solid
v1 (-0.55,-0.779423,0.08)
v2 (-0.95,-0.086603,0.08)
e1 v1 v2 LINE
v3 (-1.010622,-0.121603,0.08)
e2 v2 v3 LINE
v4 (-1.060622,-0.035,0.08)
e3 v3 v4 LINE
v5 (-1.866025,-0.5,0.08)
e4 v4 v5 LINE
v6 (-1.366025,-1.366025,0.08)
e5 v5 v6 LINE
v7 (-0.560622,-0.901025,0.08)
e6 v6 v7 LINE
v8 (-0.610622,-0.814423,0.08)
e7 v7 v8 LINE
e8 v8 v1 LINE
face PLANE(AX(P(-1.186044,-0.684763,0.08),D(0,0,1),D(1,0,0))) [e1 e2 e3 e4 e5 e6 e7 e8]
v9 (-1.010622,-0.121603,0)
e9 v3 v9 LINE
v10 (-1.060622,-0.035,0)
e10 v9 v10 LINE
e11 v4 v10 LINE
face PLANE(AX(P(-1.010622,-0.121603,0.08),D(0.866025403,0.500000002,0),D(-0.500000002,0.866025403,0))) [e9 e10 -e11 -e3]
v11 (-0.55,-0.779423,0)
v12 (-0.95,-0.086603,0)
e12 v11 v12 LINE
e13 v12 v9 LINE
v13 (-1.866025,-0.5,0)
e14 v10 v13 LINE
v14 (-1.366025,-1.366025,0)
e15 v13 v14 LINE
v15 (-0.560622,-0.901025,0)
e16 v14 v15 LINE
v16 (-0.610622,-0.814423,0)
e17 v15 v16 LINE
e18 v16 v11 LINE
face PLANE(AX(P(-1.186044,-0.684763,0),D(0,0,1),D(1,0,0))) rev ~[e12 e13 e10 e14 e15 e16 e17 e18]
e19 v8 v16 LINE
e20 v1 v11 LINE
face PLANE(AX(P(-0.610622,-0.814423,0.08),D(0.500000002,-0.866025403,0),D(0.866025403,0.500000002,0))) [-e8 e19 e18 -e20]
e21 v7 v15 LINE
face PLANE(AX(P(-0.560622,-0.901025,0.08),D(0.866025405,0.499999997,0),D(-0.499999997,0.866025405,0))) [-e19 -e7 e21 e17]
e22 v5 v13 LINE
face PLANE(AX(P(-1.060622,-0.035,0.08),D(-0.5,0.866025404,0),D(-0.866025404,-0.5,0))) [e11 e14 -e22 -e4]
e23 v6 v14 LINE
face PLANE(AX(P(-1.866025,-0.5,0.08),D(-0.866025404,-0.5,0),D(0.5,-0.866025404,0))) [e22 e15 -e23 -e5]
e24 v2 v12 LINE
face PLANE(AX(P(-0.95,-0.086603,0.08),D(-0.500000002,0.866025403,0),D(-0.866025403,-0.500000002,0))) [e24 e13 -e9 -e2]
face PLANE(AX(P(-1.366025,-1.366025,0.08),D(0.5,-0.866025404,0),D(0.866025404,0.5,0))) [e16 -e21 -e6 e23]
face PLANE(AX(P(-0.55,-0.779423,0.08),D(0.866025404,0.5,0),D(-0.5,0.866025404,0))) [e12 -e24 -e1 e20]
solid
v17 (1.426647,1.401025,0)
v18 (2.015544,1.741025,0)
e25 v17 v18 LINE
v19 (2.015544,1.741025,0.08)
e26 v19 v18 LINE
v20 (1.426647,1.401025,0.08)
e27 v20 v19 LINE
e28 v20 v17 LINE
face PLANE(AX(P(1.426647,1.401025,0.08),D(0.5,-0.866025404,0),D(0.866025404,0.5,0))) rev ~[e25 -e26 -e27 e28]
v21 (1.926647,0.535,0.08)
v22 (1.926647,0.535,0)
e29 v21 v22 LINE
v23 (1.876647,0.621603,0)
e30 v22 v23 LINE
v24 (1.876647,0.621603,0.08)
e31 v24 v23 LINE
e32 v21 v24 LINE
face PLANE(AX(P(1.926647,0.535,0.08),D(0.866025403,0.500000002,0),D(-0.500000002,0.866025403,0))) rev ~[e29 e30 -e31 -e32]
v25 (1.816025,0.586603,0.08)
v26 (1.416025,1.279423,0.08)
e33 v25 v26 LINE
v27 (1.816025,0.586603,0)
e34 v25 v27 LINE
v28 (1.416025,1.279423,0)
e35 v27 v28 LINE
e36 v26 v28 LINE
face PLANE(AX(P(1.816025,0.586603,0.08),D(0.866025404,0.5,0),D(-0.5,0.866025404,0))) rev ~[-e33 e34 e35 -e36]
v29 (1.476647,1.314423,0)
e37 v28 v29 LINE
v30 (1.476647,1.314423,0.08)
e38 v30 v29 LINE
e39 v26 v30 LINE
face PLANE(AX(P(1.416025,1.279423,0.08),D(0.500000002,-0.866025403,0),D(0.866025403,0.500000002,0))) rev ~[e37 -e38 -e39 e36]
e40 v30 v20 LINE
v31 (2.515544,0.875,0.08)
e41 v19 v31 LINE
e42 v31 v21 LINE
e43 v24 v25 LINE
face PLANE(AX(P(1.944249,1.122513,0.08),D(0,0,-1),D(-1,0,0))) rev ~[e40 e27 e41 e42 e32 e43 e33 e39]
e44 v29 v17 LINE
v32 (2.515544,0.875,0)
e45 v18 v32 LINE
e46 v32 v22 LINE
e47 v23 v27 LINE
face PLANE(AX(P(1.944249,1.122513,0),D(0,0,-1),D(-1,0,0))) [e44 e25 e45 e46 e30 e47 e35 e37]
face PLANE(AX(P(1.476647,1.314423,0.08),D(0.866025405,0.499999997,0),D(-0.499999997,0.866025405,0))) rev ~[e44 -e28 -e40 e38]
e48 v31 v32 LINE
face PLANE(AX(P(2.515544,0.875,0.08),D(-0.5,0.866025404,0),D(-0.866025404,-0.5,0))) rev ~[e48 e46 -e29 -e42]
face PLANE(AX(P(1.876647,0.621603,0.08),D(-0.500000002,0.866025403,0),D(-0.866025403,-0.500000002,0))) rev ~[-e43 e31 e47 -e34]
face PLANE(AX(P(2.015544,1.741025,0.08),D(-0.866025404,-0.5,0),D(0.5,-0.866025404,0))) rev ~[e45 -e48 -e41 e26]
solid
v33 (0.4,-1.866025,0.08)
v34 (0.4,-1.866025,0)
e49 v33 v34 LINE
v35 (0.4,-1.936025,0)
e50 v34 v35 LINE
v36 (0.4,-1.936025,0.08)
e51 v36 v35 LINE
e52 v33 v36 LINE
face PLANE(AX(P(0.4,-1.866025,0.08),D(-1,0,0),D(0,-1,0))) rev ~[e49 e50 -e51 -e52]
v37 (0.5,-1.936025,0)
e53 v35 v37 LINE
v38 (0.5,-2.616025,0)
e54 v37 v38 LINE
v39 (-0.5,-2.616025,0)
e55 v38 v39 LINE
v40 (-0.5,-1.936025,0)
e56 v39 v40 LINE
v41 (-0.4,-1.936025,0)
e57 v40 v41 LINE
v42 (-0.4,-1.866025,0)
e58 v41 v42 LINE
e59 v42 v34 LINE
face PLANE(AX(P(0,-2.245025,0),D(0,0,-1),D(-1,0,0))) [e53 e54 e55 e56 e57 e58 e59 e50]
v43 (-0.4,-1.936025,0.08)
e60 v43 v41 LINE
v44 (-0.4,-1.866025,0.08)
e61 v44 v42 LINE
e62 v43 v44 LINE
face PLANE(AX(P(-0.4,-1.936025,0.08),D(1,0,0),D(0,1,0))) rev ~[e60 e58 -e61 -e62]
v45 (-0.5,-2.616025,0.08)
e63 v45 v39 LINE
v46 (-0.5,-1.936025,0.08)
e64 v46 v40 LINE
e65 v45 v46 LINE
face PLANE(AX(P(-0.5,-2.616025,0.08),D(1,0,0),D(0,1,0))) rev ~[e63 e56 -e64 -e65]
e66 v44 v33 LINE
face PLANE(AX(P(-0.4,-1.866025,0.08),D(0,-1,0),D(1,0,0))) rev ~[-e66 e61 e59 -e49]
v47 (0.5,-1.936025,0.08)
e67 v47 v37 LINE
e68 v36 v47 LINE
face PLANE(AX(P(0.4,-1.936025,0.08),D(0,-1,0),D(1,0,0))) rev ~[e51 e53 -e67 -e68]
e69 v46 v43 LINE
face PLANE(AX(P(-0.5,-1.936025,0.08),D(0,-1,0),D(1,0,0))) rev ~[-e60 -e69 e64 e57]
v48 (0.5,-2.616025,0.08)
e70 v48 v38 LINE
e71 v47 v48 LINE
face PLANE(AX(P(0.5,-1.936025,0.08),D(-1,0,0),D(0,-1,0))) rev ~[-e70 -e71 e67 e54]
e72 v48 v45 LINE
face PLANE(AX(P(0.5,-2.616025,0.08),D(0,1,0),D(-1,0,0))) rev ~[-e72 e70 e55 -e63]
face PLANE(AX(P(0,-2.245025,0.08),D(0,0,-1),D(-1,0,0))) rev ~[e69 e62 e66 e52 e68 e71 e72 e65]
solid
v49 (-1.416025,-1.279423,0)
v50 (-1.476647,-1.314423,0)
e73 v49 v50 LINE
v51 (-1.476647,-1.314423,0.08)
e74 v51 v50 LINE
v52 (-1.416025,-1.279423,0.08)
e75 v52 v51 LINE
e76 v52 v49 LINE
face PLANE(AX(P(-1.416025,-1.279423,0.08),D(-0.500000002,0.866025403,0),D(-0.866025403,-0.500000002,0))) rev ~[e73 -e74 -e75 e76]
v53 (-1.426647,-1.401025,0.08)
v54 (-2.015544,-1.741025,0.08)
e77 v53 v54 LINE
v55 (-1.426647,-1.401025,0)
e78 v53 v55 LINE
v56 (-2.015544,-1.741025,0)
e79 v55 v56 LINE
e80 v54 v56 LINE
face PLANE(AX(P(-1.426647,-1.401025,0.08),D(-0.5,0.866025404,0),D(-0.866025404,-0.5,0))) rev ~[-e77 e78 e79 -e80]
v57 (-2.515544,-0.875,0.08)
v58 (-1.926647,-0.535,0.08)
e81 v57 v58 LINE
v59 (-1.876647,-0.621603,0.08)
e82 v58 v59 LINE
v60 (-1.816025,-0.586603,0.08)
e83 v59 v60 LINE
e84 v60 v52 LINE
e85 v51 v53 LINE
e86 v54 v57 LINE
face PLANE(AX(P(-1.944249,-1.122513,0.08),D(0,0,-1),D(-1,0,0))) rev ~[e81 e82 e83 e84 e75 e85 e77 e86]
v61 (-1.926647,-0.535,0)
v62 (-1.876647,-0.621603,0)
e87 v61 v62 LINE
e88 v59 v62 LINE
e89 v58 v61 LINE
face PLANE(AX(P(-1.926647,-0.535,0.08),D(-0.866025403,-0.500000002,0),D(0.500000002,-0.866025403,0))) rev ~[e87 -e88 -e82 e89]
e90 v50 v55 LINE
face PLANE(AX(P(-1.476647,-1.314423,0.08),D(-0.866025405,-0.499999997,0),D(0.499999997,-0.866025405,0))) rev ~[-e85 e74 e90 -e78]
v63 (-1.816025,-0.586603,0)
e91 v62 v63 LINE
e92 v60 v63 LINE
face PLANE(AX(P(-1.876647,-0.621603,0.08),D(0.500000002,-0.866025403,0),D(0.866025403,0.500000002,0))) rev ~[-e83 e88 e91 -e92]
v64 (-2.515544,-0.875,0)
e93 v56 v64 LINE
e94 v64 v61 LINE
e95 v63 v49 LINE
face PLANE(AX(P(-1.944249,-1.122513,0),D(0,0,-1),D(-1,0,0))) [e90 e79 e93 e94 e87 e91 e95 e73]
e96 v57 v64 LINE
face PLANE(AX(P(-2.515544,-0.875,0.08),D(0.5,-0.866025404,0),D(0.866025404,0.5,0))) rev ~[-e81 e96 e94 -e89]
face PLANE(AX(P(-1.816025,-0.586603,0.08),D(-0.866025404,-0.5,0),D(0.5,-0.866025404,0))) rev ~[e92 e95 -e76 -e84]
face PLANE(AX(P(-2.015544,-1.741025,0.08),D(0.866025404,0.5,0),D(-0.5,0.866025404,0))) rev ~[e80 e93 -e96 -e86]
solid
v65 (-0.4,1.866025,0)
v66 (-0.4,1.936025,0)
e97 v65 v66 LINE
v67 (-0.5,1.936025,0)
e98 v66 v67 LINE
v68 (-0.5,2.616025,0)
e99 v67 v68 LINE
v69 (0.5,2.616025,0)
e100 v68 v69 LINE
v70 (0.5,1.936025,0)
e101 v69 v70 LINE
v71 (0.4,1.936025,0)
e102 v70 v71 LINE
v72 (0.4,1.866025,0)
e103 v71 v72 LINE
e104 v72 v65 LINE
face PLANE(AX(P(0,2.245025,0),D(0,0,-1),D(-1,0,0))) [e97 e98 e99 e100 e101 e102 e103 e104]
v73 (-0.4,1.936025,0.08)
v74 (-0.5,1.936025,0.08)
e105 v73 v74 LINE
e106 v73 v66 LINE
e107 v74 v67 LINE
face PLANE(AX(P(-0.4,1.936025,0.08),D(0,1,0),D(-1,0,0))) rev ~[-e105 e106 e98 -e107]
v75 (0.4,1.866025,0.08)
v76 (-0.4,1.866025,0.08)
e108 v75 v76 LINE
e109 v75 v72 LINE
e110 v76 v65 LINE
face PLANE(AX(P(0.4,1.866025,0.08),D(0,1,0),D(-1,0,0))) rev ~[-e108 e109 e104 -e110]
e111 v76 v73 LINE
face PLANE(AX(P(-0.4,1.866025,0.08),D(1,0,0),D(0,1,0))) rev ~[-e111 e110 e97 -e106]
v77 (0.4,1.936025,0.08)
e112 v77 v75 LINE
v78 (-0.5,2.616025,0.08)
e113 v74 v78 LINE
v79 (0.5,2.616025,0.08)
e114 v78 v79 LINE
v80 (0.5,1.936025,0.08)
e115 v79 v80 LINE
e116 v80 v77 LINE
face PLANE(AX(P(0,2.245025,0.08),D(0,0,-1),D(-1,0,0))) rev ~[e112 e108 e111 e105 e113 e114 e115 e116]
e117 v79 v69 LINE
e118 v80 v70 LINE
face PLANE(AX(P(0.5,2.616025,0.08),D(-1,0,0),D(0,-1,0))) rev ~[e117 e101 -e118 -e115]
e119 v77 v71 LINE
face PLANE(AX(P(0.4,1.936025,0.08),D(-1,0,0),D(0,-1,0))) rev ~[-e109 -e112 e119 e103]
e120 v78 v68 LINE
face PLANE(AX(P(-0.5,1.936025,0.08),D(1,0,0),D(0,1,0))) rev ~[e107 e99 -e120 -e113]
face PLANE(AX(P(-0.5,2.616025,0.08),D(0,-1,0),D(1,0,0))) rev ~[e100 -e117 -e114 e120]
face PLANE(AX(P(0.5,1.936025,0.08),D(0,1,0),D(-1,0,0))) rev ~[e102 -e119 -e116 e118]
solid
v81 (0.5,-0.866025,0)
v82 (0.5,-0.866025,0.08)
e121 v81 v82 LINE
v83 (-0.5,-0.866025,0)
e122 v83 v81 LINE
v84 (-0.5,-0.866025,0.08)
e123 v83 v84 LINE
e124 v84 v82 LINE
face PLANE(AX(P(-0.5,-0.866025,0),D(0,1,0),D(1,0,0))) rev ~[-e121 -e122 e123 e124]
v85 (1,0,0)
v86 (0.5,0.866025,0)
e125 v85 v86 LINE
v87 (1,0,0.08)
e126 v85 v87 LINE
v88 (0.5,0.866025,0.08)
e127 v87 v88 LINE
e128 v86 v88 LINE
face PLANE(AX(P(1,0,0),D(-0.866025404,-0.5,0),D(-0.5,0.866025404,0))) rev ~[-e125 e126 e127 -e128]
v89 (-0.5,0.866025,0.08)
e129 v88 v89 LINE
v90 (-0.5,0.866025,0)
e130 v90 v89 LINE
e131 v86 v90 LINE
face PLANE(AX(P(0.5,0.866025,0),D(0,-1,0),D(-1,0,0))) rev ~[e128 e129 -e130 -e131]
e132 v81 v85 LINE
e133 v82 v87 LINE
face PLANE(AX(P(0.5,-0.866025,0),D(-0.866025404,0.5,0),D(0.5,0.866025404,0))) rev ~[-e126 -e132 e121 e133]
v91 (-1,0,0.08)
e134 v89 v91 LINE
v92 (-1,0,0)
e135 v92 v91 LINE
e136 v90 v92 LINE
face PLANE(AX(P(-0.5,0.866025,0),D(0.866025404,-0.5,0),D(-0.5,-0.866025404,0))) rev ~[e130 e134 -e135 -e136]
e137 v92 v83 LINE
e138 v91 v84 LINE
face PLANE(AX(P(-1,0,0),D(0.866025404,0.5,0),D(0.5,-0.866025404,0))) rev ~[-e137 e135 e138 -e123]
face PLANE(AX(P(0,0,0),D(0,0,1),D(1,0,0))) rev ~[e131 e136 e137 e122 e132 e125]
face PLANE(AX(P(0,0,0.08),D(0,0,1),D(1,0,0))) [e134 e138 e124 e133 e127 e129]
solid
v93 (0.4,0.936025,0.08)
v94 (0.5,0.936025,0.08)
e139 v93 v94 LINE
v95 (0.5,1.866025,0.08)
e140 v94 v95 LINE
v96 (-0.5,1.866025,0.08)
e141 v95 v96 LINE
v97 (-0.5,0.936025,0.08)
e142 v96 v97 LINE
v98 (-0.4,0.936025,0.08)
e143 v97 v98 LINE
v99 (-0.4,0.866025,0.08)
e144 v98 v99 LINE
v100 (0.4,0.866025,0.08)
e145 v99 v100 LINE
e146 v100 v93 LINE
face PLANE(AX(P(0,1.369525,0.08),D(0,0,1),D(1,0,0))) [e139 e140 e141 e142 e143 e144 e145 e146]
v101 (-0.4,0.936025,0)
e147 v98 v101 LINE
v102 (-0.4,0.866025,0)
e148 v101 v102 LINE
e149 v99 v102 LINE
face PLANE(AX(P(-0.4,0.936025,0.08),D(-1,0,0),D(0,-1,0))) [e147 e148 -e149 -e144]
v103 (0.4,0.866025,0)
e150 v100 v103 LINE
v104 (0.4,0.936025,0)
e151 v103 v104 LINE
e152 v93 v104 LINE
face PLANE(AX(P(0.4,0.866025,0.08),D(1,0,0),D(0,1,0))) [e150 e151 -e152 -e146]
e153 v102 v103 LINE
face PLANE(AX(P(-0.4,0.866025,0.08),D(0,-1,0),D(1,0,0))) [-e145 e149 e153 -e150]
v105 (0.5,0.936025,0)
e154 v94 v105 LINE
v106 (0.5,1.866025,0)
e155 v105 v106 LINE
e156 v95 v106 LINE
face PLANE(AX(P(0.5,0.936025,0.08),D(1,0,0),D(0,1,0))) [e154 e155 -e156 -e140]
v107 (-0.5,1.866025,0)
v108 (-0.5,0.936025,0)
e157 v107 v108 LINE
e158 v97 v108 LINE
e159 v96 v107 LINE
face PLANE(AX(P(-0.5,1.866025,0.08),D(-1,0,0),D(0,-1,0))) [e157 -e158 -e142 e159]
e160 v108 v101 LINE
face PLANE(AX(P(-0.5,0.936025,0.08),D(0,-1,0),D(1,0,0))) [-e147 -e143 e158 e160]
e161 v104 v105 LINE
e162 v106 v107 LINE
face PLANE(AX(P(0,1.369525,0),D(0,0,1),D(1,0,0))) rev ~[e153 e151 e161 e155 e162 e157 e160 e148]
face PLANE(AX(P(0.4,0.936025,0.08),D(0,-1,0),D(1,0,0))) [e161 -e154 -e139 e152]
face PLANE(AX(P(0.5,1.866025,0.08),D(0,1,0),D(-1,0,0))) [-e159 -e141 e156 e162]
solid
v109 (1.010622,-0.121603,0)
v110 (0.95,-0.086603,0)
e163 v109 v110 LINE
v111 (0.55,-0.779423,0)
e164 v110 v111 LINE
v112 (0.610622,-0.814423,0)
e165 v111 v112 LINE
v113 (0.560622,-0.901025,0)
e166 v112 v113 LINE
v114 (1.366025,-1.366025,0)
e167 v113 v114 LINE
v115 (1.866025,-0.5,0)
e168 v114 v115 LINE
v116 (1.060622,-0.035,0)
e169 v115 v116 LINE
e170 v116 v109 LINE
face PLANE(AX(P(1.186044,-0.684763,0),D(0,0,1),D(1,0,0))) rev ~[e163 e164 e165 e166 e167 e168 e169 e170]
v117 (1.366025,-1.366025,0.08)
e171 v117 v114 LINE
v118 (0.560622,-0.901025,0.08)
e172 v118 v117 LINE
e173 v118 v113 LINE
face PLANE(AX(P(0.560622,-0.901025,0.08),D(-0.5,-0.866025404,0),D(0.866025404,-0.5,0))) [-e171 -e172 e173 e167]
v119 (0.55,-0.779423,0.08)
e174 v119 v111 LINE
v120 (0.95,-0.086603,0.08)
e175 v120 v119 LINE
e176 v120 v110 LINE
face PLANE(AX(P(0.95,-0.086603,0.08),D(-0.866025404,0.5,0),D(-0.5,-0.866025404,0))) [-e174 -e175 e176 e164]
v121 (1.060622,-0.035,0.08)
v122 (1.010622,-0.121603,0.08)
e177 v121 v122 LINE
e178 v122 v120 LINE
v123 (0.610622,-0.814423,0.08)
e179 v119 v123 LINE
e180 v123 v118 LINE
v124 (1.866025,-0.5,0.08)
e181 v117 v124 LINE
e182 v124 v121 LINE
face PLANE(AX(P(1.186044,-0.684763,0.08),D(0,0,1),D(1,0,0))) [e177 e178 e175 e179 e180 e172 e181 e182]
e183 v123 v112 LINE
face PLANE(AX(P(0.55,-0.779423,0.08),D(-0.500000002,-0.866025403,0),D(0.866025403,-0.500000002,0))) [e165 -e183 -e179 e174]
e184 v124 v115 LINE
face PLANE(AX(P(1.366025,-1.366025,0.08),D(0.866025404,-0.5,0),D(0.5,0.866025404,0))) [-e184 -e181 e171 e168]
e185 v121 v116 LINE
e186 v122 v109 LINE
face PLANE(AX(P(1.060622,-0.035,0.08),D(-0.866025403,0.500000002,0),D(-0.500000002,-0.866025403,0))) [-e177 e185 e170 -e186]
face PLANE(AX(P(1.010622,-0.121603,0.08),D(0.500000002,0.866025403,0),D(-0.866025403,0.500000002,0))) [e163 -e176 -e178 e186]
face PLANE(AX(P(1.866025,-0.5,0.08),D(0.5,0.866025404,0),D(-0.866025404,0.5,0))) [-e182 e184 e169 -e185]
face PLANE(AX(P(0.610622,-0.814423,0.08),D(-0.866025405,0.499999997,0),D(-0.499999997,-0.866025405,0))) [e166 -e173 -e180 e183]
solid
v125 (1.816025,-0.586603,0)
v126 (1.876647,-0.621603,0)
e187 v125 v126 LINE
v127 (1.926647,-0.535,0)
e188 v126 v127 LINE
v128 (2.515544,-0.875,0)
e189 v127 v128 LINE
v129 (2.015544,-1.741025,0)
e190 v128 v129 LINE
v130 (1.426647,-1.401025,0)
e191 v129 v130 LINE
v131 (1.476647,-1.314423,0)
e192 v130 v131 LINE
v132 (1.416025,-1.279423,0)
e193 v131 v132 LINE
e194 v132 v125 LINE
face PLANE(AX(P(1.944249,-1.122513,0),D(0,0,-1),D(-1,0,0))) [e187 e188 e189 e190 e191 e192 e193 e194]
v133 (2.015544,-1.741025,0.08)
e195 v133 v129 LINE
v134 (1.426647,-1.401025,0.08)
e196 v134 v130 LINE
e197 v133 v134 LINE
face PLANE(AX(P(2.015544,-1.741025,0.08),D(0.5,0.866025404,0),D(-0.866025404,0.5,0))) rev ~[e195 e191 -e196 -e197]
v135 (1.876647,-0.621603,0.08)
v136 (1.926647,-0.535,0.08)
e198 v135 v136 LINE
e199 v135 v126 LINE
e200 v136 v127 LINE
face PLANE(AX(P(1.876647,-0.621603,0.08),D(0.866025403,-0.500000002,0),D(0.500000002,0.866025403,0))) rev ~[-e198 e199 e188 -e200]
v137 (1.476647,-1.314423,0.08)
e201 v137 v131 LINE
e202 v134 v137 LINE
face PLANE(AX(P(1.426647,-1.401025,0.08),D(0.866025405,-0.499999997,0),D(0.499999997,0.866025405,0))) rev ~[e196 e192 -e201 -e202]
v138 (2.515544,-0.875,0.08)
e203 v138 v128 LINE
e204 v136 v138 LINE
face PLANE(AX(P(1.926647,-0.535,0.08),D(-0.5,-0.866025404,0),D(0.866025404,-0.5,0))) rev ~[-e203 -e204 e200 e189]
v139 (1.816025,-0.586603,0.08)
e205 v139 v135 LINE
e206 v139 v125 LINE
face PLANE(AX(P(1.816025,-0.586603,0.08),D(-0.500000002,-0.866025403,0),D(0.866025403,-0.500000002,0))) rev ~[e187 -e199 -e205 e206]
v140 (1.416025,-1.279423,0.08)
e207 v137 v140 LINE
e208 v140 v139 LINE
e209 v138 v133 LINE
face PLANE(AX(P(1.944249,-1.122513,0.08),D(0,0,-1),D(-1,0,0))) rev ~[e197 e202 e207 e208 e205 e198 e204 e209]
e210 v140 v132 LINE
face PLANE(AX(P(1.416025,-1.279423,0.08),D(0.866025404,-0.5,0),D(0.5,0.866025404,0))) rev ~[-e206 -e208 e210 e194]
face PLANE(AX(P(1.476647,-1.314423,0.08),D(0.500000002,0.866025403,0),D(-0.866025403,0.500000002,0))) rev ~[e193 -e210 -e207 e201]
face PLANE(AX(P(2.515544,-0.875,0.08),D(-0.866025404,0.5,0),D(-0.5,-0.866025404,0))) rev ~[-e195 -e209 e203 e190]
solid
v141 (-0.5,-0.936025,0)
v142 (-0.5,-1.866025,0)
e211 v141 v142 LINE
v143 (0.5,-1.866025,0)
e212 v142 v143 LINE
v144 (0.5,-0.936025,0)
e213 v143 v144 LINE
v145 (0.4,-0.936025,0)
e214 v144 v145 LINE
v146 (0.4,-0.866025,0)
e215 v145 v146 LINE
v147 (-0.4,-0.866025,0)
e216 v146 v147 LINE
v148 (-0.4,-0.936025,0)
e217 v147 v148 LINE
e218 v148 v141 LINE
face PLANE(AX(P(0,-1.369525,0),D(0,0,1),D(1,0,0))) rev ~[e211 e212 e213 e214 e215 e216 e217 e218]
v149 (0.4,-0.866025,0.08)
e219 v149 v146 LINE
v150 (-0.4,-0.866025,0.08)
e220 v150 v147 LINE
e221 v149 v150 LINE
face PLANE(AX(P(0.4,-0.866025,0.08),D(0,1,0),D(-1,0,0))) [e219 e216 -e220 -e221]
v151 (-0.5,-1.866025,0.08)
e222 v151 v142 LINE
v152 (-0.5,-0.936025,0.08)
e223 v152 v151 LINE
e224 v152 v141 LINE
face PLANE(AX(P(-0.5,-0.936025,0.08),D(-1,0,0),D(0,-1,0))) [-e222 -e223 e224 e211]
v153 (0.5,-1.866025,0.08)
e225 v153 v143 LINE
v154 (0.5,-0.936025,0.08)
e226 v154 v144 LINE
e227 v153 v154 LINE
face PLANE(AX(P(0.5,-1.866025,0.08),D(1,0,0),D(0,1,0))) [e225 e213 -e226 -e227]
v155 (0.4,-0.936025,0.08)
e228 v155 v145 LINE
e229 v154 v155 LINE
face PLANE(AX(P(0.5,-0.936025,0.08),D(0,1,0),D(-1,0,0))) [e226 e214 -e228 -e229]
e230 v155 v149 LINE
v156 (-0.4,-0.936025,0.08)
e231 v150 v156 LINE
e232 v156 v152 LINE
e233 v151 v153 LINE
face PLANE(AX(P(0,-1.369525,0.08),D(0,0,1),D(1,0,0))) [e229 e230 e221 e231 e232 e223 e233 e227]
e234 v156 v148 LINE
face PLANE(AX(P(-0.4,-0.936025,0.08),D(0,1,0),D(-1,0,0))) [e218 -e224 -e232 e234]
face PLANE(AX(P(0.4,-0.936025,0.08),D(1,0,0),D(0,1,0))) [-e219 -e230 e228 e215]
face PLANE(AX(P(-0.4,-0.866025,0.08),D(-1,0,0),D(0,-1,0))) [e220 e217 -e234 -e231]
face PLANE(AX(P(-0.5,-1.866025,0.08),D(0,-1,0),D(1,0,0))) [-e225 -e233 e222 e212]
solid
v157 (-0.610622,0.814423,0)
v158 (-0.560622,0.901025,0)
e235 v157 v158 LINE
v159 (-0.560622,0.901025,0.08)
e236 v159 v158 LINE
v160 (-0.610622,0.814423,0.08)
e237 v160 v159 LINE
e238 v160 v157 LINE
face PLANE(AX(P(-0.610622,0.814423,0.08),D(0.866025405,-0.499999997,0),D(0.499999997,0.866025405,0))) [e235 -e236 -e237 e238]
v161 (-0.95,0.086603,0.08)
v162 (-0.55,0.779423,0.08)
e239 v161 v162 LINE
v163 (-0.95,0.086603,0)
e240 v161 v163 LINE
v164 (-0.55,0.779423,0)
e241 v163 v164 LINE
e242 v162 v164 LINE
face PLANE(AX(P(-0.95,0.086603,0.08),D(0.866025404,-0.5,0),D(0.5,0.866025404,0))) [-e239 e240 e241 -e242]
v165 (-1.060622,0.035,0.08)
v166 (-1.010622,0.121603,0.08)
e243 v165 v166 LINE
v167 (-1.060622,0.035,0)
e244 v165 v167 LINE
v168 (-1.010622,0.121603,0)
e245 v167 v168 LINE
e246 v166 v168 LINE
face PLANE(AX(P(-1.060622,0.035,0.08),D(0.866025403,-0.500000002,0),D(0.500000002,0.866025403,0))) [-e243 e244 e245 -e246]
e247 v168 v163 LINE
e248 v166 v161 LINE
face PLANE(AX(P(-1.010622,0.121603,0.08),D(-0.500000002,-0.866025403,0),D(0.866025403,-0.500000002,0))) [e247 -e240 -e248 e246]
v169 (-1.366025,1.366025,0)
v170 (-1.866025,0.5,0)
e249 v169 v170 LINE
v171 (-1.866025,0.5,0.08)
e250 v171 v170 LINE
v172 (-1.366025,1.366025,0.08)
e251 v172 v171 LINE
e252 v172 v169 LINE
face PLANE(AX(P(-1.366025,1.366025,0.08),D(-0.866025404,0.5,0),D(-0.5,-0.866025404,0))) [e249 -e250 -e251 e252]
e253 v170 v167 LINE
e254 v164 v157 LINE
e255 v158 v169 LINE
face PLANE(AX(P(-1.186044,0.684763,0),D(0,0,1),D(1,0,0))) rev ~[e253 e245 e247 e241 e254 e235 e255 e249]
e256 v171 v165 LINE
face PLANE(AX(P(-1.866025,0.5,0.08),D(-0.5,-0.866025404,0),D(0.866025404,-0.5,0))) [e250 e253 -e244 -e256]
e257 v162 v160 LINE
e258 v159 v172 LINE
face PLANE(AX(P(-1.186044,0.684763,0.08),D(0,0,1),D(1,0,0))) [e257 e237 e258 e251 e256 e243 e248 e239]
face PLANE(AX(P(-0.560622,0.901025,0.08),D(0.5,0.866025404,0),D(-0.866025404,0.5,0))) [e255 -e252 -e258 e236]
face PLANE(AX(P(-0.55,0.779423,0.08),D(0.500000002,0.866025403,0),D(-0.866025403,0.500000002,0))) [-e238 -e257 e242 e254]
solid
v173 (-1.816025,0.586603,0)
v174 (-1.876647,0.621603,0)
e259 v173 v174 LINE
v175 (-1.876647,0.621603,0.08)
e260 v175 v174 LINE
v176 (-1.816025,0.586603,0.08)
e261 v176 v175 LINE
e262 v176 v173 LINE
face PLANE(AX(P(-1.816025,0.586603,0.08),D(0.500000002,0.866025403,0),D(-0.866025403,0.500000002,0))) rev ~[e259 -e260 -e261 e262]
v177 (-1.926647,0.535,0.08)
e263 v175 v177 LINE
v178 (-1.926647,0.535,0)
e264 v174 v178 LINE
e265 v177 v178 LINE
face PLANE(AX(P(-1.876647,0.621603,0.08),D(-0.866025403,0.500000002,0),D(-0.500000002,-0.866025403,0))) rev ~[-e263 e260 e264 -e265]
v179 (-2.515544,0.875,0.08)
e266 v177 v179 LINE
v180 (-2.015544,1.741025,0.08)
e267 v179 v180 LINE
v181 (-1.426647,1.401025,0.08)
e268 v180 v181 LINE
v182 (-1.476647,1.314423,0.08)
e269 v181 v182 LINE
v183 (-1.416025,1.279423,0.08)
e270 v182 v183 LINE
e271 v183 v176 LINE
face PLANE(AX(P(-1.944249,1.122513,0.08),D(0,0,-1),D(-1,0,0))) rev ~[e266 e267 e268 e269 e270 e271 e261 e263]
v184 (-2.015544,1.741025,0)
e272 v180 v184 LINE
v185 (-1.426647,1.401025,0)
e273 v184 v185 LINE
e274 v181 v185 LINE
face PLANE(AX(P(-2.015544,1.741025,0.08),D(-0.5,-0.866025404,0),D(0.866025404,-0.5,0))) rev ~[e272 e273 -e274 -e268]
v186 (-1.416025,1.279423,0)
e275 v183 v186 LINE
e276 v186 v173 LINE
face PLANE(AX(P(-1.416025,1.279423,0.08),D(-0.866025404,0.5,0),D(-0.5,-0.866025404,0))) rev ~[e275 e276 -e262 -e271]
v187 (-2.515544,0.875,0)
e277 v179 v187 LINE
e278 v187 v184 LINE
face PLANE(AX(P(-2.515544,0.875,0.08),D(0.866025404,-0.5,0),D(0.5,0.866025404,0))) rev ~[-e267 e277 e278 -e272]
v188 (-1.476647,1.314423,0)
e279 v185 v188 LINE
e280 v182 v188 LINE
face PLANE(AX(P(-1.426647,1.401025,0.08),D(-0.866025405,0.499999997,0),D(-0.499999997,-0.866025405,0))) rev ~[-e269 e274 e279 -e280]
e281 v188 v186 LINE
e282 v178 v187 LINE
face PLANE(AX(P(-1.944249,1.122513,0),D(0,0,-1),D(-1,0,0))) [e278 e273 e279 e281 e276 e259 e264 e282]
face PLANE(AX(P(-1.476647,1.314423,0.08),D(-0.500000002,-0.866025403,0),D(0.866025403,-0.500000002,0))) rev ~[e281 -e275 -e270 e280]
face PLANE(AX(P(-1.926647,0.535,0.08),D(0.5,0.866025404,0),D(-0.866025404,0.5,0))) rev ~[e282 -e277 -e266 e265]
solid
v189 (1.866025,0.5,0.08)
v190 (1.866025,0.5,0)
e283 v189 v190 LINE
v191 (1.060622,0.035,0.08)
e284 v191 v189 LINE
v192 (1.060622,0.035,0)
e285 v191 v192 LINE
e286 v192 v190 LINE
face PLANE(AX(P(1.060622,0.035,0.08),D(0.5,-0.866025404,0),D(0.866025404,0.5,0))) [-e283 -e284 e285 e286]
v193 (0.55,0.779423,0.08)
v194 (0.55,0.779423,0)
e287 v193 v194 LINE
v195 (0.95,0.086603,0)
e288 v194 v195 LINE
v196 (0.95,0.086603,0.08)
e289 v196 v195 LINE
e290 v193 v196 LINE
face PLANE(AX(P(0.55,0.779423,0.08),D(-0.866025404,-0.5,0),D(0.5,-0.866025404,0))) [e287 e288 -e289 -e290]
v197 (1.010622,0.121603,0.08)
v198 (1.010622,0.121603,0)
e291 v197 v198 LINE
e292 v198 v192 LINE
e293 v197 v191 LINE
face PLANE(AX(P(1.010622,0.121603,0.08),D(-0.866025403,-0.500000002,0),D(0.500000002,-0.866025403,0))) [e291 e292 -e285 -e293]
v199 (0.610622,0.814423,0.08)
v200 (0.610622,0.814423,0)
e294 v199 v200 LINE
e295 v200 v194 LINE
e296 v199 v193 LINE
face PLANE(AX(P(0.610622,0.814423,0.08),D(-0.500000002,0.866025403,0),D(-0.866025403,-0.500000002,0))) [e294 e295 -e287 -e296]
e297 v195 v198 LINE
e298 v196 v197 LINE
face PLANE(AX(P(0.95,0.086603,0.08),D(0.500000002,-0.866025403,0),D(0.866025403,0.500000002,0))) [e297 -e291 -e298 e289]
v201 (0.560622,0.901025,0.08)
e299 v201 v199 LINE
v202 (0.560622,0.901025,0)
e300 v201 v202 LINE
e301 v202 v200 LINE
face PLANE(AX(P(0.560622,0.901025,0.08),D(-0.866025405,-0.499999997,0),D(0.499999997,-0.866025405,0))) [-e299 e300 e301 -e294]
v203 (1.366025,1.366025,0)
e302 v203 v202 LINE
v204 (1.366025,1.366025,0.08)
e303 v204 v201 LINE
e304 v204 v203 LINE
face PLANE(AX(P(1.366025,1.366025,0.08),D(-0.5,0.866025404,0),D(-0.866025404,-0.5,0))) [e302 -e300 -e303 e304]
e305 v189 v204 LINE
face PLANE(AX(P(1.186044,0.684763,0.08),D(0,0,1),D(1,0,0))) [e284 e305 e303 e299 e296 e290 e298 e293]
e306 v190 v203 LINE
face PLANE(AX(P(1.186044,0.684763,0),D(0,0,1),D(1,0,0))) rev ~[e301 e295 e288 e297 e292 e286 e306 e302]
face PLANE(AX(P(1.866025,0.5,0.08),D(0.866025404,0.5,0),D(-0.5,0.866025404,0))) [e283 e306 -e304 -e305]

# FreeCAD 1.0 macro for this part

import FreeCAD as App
import Part
import Sketcher
from FreeCAD import Vector
Q = App.Units.Quantity


def add_polygon(sketch, points):
    """Adds a closed chain of lines whose ends are joined by coincident constraints."""
    first, n = sketch.GeometryCount, len(points)
    for a, b in zip(points, points[1:] + points[:1]):
        sketch.addGeometry(Part.LineSegment(App.Vector(*a, 0), App.Vector(*b, 0)), False)
    for i in range(n):
        sketch.addConstraint(Sketcher.Constraint("Coincident", first + i, 2, first + (i + 1) % n, 1))

doc = App.newDocument("Part")
params = doc.addObject("Spreadsheet::Sheet", "Params")
for row, (alias, value) in enumerate([
    ("sketch1_width", "1 mm"),
    ("sketch1_length", "1 mm"),
    ("pad1_length", "0.08 mm"),
    ("sketch2_length", "1 mm"),
    ("sketch2_length2", "0.8 mm"),
    ("sketch2_length3", "0.07 mm"),
    ("sketch2_length4", "0.93 mm"),
    ("pad2_length", "0.08 mm"),
    ("sketch3_width", "1 mm"),
    ("sketch3_width2", "0.8 mm"),
    ("sketch3_height", "0.07 mm"),
    ("pad3_length", "0.08 mm"),
    ("sketch4_length", "1 mm"),
    ("sketch4_length2", "0.8 mm"),
    ("sketch4_length3", "0.07 mm"),
    ("sketch4_length4", "0.93 mm"),
    ("pad4_length", "0.08 mm"),
    ("sketch5_length", "1 mm"),
    ("sketch5_length2", "0.8 mm"),
    ("sketch5_length3", "0.07 mm"),
    ("sketch5_length4", "0.93 mm"),
    ("pad5_length", "0.08 mm"),
    ("sketch6_width", "1 mm"),
    ("sketch6_width2", "0.8 mm"),
    ("sketch6_height", "0.07 mm"),
    ("pad6_length", "0.08 mm"),
    ("sketch7_length", "1 mm"),
    ("sketch7_length2", "0.8 mm"),
    ("sketch7_length3", "0.07 mm"),
    ("sketch7_length4", "0.93 mm"),
    ("pad7_length", "0.08 mm"),
    ("sketch8_length", "1 mm"),
    ("sketch8_length2", "0.8 mm"),
    ("sketch8_length3", "0.07 mm"),
    ("sketch8_length4", "0.68 mm"),
    ("pad8_length", "0.08 mm"),
    ("sketch9_width", "1 mm"),
    ("sketch9_width2", "0.8 mm"),
    ("sketch9_height", "0.07 mm"),
    ("sketch9_height2", "0.68 mm"),
    ("pad9_length", "0.08 mm"),
    ("sketch10_length", "1 mm"),
    ("sketch10_length2", "0.8 mm"),
    ("sketch10_length3", "0.07 mm"),
    ("sketch10_length4", "0.68 mm"),
    ("pad10_length", "0.08 mm"),
    ("sketch11_length", "1 mm"),
    ("sketch11_length2", "0.8 mm"),
    ("sketch11_length3", "0.07 mm"),
    ("sketch11_length4", "0.68 mm"),
    ("pad11_length", "0.08 mm"),
    ("sketch12_width", "1 mm"),
    ("sketch12_width2", "0.8 mm"),
    ("sketch12_height", "0.07 mm"),
    ("sketch12_height2", "0.68 mm"),
    ("pad12_length", "0.08 mm"),
    ("sketch13_length", "1 mm"),
    ("sketch13_length2", "0.8 mm"),
    ("sketch13_length3", "0.07 mm"),
    ("sketch13_length4", "0.68 mm"),
    ("pad13_length", "0.08 mm"),
], start=1):
    params.set(f"A{row}", alias)
    params.set(f"B{row}", "=" + value)
    params.setAlias(f"B{row}", alias)

body = doc.addObject("PartDesign::Body", "Body")

sketch1 = doc.addObject("Sketcher::SketchObject", "Sketch")
body.addObject(sketch1)
sketch1.AttachmentSupport = (doc.XY_Plane, [""])
sketch1.MapMode = "FlatFace"
add_polygon(sketch1, [(-1, 0), (-0.5, -0.9), (0.5, -0.9), (1, 0), (0.5, 0.9), (-0.5, 0.9)])
sketch1.addConstraint([
    Sketcher.Constraint("Horizontal", 1),
    Sketcher.Constraint("Horizontal", 4),
    Sketcher.Constraint("Symmetric", 0, 2, 3, 2, -1, 1),
    Sketcher.Constraint("Symmetric", 2, 2, 5, 2, -1, 1),
    Sketcher.Constraint("PointOnObject", 2, 2, -1),
    Sketcher.Constraint("Parallel", 2, 5),
    Sketcher.Constraint("Vertical", 1, 2, 3, 2),
    Sketcher.Constraint("DistanceX", 1, 1, 1, 2, Q("1 mm")),
    Sketcher.Constraint("Angle", 0, Q("-60 deg")),
    Sketcher.Constraint("Distance", 0, Q("1 mm")),
])
sketch1.setExpression("Constraints[13]", "Params.sketch1_width")
sketch1.setExpression("Constraints[15]", "Params.sketch1_length")
pad1 = doc.addObject("PartDesign::Pad", "Pad")
body.addObject(pad1)
pad1.Profile = sketch1
pad1.setExpression("Length", "Params.pad1_length")
body2 = doc.addObject("PartDesign::Body", "Body001")

sketch2 = doc.addObject("Sketcher::SketchObject", "Sketch001")
body2.addObject(sketch2)
sketch2.AttachmentSupport = (doc.getObject("XY_Plane001"), [""])
sketch2.MapMode = "FlatFace"
sketch2.AttachmentOffset = App.Placement(Vector(0, 0, 0.08), App.Rotation())
add_polygon(sketch2, [(-1.01, 0.12), (-0.95, 0.09), (-0.55, 0.78), (-0.61, 0.81), (-0.56, 0.9), (-1.37, 1.37), (-1.87, 0.5), (-1.06, 0.04)])
sketch2.addConstraint([
    Sketcher.Constraint("Perpendicular", 0, 1),
    Sketcher.Constraint("Perpendicular", 1, 2),
    Sketcher.Constraint("Perpendicular", 2, 3),
    Sketcher.Constraint("Perpendicular", 3, 4),
    Sketcher.Constraint("Perpendicular", 4, 5),
    Sketcher.Constraint("Perpendicular", 5, 6),
    Sketcher.Constraint("Perpendicular", 6, 7),
    Sketcher.Constraint("Equal", 0, 2),
    Sketcher.Constraint("Equal", 3, 7),
    Sketcher.Constraint("Angle", 0, Q("-30 deg")),
    Sketcher.Constraint("Distance", 5, Q("1 mm")),
    Sketcher.Constraint("Distance", 1, Q("0.8 mm")),
    Sketcher.Constraint("DistanceY", -1, 1, 5, 2, Q("0.5 mm")),
    Sketcher.Constraint("Distance", 0, Q("0.07 mm")),
    Sketcher.Constraint("Distance", 4, Q("0.93 mm")),
    Sketcher.Constraint("DistanceX", 0, 2, -1, 1, Q("0.95 mm")),
])
sketch2.setExpression("Constraints[18]", "Params.sketch2_length")
sketch2.setExpression("Constraints[19]", "Params.sketch2_length2")
sketch2.setExpression("Constraints[21]", "Params.sketch2_length3")
sketch2.setExpression("Constraints[22]", "Params.sketch2_length4")
pad2 = doc.addObject("PartDesign::Pad", "Pad001")
body2.addObject(pad2)
pad2.Profile = sketch2
pad2.setExpression("Length", "Params.pad2_length")
pad2.Reversed = True
body3 = doc.addObject("PartDesign::Body", "Body002")

sketch3 = doc.addObject("Sketcher::SketchObject", "Sketch002")
body3.addObject(sketch3)
sketch3.AttachmentSupport = (doc.getObject("XY_Plane002"), [""])
sketch3.MapMode = "FlatFace"
sketch3.AttachmentOffset = App.Placement(Vector(0, 0, 0.08), App.Rotation())
add_polygon(sketch3, [(-0.4, 0.94), (-0.4, 0.87), (0.4, 0.87), (0.4, 0.94), (0.5, 0.94), (0.5, 1.87), (-0.5, 1.87), (-0.5, 0.94)])
sketch3.addConstraint([
    Sketcher.Constraint("Vertical", 0),
    Sketcher.Constraint("Horizontal", 1),
    Sketcher.Constraint("Vertical", 2),
    Sketcher.Constraint("Horizontal", 3),
    Sketcher.Constraint("Vertical", 4),
    Sketcher.Constraint("Horizontal", 5),
    Sketcher.Constraint("Vertical", 6),
    Sketcher.Constraint("Horizontal", 7),
    Sketcher.Constraint("Symmetric", 3, 2, 6, 2, -2),
    Sketcher.Constraint("Equal", 3, 7),
    Sketcher.Constraint("DistanceX", 5, 2, 5, 1, Q("1 mm")),
    Sketcher.Constraint("DistanceX", 1, 1, 1, 2, Q("0.8 mm")),
    Sketcher.Constraint("DistanceY", 1, 2, 4, 2, Q("1 mm")),
    Sketcher.Constraint("DistanceY", 0, 2, 0, 1, Q("0.07 mm")),
    Sketcher.Constraint("DistanceY", -1, 1, 0, 2, Q("0.866025 mm")),
])
sketch3.setExpression("Constraints[18]", "Params.sketch3_width")
sketch3.setExpression("Constraints[19]", "Params.sketch3_width2")
sketch3.setExpression("Constraints[21]", "Params.sketch3_height")
pad3 = doc.addObject("PartDesign::Pad", "Pad002")
body3.addObject(pad3)
pad3.Profile = sketch3
pad3.setExpression("Length", "Params.pad3_length")
pad3.Reversed = True
body4 = doc.addObject("PartDesign::Body", "Body003")

sketch4 = doc.addObject("Sketcher::SketchObject", "Sketch003")
body4.addObject(sketch4)
sketch4.AttachmentSupport = (doc.getObject("XY_Plane003"), [""])
sketch4.MapMode = "FlatFace"
sketch4.AttachmentOffset = App.Placement(Vector(0, 0, 0.08), App.Rotation())
add_polygon(sketch4, [(0.61, 0.81), (0.55, 0.78), (0.95, 0.09), (1.01, 0.12), (1.06, 0.04), (1.87, 0.5), (1.37, 1.37), (0.56, 0.9)])
sketch4.addConstraint([
    Sketcher.Constraint("Perpendicular", 0, 1),
    Sketcher.Constraint("Perpendicular", 1, 2),
    Sketcher.Constraint("Perpendicular", 2, 3),
    Sketcher.Constraint("Perpendicular", 3, 4),
    Sketcher.Constraint("Perpendicular", 4, 5),
    Sketcher.Constraint("Perpendicular", 5, 6),
    Sketcher.Constraint("Perpendicular", 6, 7),
    Sketcher.Constraint("Equal", 0, 2),
    Sketcher.Constraint("Equal", 3, 7),
    Sketcher.Constraint("Angle", 0, Q("-150 deg")),
    Sketcher.Constraint("Distance", 5, Q("1 mm")),
    Sketcher.Constraint("Distance", 1, Q("0.8 mm")),
    Sketcher.Constraint("DistanceY", -1, 1, 4, 2, Q("0.5 mm")),
    Sketcher.Constraint("Distance", 0, Q("0.07 mm")),
    Sketcher.Constraint("Distance", 4, Q("0.93 mm")),
    Sketcher.Constraint("DistanceX", -1, 1, 0, 2, Q("0.55 mm")),
])
sketch4.setExpression("Constraints[18]", "Params.sketch4_length")
sketch4.setExpression("Constraints[19]", "Params.sketch4_length2")
sketch4.setExpression("Constraints[21]", "Params.sketch4_length3")
sketch4.setExpression("Constraints[22]", "Params.sketch4_length4")
pad4 = doc.addObject("PartDesign::Pad", "Pad003")
body4.addObject(pad4)
pad4.Profile = sketch4
pad4.setExpression("Length", "Params.pad4_length")
pad4.Reversed = True
body5 = doc.addObject("PartDesign::Body", "Body004")

sketch5 = doc.addObject("Sketcher::SketchObject", "Sketch004")
body5.addObject(sketch5)
sketch5.AttachmentSupport = (doc.getObject("XY_Plane004"), [""])
sketch5.MapMode = "FlatFace"
sketch5.AttachmentOffset = App.Placement(Vector(0, 0, 0.08), App.Rotation())
add_polygon(sketch5, [(1.01, -0.12), (0.95, -0.09), (0.55, -0.78), (0.61, -0.81), (0.56, -0.9), (1.37, -1.37), (1.87, -0.5), (1.06, -0.04)])
sketch5.addConstraint([
    Sketcher.Constraint("Perpendicular", 0, 1),
    Sketcher.Constraint("Perpendicular", 1, 2),
    Sketcher.Constraint("Perpendicular", 2, 3),
    Sketcher.Constraint("Perpendicular", 3, 4),
    Sketcher.Constraint("Perpendicular", 4, 5),
    Sketcher.Constraint("Perpendicular", 5, 6),
    Sketcher.Constraint("Perpendicular", 6, 7),
    Sketcher.Constraint("Equal", 0, 2),
    Sketcher.Constraint("Equal", 3, 7),
    Sketcher.Constraint("Angle", 0, Q("150 deg")),
    Sketcher.Constraint("Distance", 5, Q("1 mm")),
    Sketcher.Constraint("Distance", 1, Q("0.8 mm")),
    Sketcher.Constraint("DistanceY", 5, 2, -1, 1, Q("0.5 mm")),
    Sketcher.Constraint("Distance", 0, Q("0.07 mm")),
    Sketcher.Constraint("Distance", 4, Q("0.93 mm")),
    Sketcher.Constraint("DistanceX", -1, 1, 0, 2, Q("0.95 mm")),
])
sketch5.setExpression("Constraints[18]", "Params.sketch5_length")
sketch5.setExpression("Constraints[19]", "Params.sketch5_length2")
sketch5.setExpression("Constraints[21]", "Params.sketch5_length3")
sketch5.setExpression("Constraints[22]", "Params.sketch5_length4")
pad5 = doc.addObject("PartDesign::Pad", "Pad004")
body5.addObject(pad5)
pad5.Profile = sketch5
pad5.setExpression("Length", "Params.pad5_length")
pad5.Reversed = True
body6 = doc.addObject("PartDesign::Body", "Body005")

sketch6 = doc.addObject("Sketcher::SketchObject", "Sketch005")
body6.addObject(sketch6)
sketch6.AttachmentSupport = (doc.getObject("XY_Plane005"), [""])
sketch6.MapMode = "FlatFace"
sketch6.AttachmentOffset = App.Placement(Vector(0, 0, 0.08), App.Rotation())
add_polygon(sketch6, [(0.4, -0.94), (0.4, -0.87), (-0.4, -0.87), (-0.4, -0.94), (-0.5, -0.94), (-0.5, -1.87), (0.5, -1.87), (0.5, -0.94)])
sketch6.addConstraint([
    Sketcher.Constraint("Vertical", 0),
    Sketcher.Constraint("Horizontal", 1),
    Sketcher.Constraint("Vertical", 2),
    Sketcher.Constraint("Horizontal", 3),
    Sketcher.Constraint("Vertical", 4),
    Sketcher.Constraint("Horizontal", 5),
    Sketcher.Constraint("Vertical", 6),
    Sketcher.Constraint("Horizontal", 7),
    Sketcher.Constraint("Symmetric", 3, 2, 6, 2, -2),
    Sketcher.Constraint("Equal", 3, 7),
    Sketcher.Constraint("DistanceX", 5, 1, 5, 2, Q("1 mm")),
    Sketcher.Constraint("DistanceX", 1, 2, 1, 1, Q("0.8 mm")),
    Sketcher.Constraint("DistanceY", 4, 2, 1, 2, Q("1 mm")),
    Sketcher.Constraint("DistanceY", 0, 1, 0, 2, Q("0.07 mm")),
    Sketcher.Constraint("DistanceY", 0, 2, -1, 1, Q("0.866025 mm")),
])
sketch6.setExpression("Constraints[18]", "Params.sketch6_width")
sketch6.setExpression("Constraints[19]", "Params.sketch6_width2")
sketch6.setExpression("Constraints[21]", "Params.sketch6_height")
pad6 = doc.addObject("PartDesign::Pad", "Pad005")
body6.addObject(pad6)
pad6.Profile = sketch6
pad6.setExpression("Length", "Params.pad6_length")
pad6.Reversed = True
body7 = doc.addObject("PartDesign::Body", "Body006")

sketch7 = doc.addObject("Sketcher::SketchObject", "Sketch006")
body7.addObject(sketch7)
sketch7.AttachmentSupport = (doc.getObject("XY_Plane006"), [""])
sketch7.MapMode = "FlatFace"
sketch7.AttachmentOffset = App.Placement(Vector(0, 0, 0.08), App.Rotation())
add_polygon(sketch7, [(-0.61, -0.81), (-0.55, -0.78), (-0.95, -0.09), (-1.01, -0.12), (-1.06, -0.04), (-1.87, -0.5), (-1.37, -1.37), (-0.56, -0.9)])
sketch7.addConstraint([
    Sketcher.Constraint("Perpendicular", 0, 1),
    Sketcher.Constraint("Perpendicular", 1, 2),
    Sketcher.Constraint("Perpendicular", 2, 3),
    Sketcher.Constraint("Perpendicular", 3, 4),
    Sketcher.Constraint("Perpendicular", 4, 5),
    Sketcher.Constraint("Perpendicular", 5, 6),
    Sketcher.Constraint("Perpendicular", 6, 7),
    Sketcher.Constraint("Equal", 0, 2),
    Sketcher.Constraint("Equal", 3, 7),
    Sketcher.Constraint("Angle", 0, Q("30 deg")),
    Sketcher.Constraint("Distance", 5, Q("1 mm")),
    Sketcher.Constraint("Distance", 1, Q("0.8 mm")),
    Sketcher.Constraint("DistanceY", 4, 2, -1, 1, Q("0.5 mm")),
    Sketcher.Constraint("Distance", 0, Q("0.07 mm")),
    Sketcher.Constraint("Distance", 4, Q("0.93 mm")),
    Sketcher.Constraint("DistanceX", 0, 2, -1, 1, Q("0.55 mm")),
])
sketch7.setExpression("Constraints[18]", "Params.sketch7_length")
sketch7.setExpression("Constraints[19]", "Params.sketch7_length2")
sketch7.setExpression("Constraints[21]", "Params.sketch7_length3")
sketch7.setExpression("Constraints[22]", "Params.sketch7_length4")
pad7 = doc.addObject("PartDesign::Pad", "Pad006")
body7.addObject(pad7)
pad7.Profile = sketch7
pad7.setExpression("Length", "Params.pad7_length")
pad7.Reversed = True
body8 = doc.addObject("PartDesign::Body", "Body007")

sketch8 = doc.addObject("Sketcher::SketchObject", "Sketch007")
body8.addObject(sketch8)
sketch8.AttachmentSupport = (doc.getObject("XY_Plane007"), [""])
sketch8.MapMode = "FlatFace"
sketch8.AttachmentOffset = App.Placement(Vector(0, 0, 0.08), App.Rotation())
add_polygon(sketch8, [(-1.82, 0.59), (-1.42, 1.28), (-1.48, 1.31), (-1.43, 1.4), (-2.02, 1.74), (-2.52, 0.88), (-1.93, 0.54), (-1.88, 0.62)])
sketch8.addConstraint([
    Sketcher.Constraint("Perpendicular", 0, 1),
    Sketcher.Constraint("Perpendicular", 1, 2),
    Sketcher.Constraint("Perpendicular", 2, 3),
    Sketcher.Constraint("Perpendicular", 3, 4),
    Sketcher.Constraint("Perpendicular", 4, 5),
    Sketcher.Constraint("Perpendicular", 5, 6),
    Sketcher.Constraint("Perpendicular", 6, 7),
    Sketcher.Constraint("Equal", 3, 5),
    Sketcher.Constraint("Equal", 2, 6),
    Sketcher.Constraint("Angle", 0, Q("60 deg")),
    Sketcher.Constraint("Distance", 4, Q("1 mm")),
    Sketcher.Constraint("Distance", 0, Q("0.8 mm")),
    Sketcher.Constraint("Distance", 1, Q("0.07 mm")),
    Sketcher.Constraint("Distance", 3, Q("0.68 mm")),
    Sketcher.Constraint("DistanceY", -1, 1, 4, 2, Q("0.875 mm")),
    Sketcher.Constraint("DistanceX", 0, 2, -1, 1, Q("1.416025 mm")),
])
sketch8.setExpression("Constraints[18]", "Params.sketch8_length")
sketch8.setExpression("Constraints[19]", "Params.sketch8_length2")
sketch8.setExpression("Constraints[20]", "Params.sketch8_length3")
sketch8.setExpression("Constraints[21]", "Params.sketch8_length4")
pad8 = doc.addObject("PartDesign::Pad", "Pad007")
body8.addObject(pad8)
pad8.Profile = sketch8
pad8.setExpression("Length", "Params.pad8_length")
pad8.Reversed = True
body9 = doc.addObject("PartDesign::Body", "Body008")

sketch9 = doc.addObject("Sketcher::SketchObject", "Sketch008")
body9.addObject(sketch9)
sketch9.AttachmentSupport = (doc.getObject("XY_Plane008"), [""])
sketch9.MapMode = "FlatFace"
sketch9.AttachmentOffset = App.Placement(Vector(0, 0, 0.08), App.Rotation())
add_polygon(sketch9, [(-0.4, 1.87), (0.4, 1.87), (0.4, 1.94), (0.5, 1.94), (0.5, 2.62), (-0.5, 2.62), (-0.5, 1.94), (-0.4, 1.94)])
sketch9.addConstraint([
    Sketcher.Constraint("Horizontal", 0),
    Sketcher.Constraint("Vertical", 1),
    Sketcher.Constraint("Horizontal", 2),
    Sketcher.Constraint("Vertical", 3),
    Sketcher.Constraint("Horizontal", 4),
    Sketcher.Constraint("Vertical", 5),
    Sketcher.Constraint("Horizontal", 6),
    Sketcher.Constraint("Vertical", 7),
    Sketcher.Constraint("Symmetric", 2, 2, 5, 2, -2),
    Sketcher.Constraint("Equal", 2, 6),
    Sketcher.Constraint("DistanceX", 4, 2, 4, 1, Q("1 mm")),
    Sketcher.Constraint("DistanceX", 0, 1, 0, 2, Q("0.8 mm")),
    Sketcher.Constraint("DistanceY", 1, 1, 1, 2, Q("0.07 mm")),
    Sketcher.Constraint("DistanceY", 3, 1, 3, 2, Q("0.68 mm")),
    Sketcher.Constraint("DistanceY", -1, 1, 0, 2, Q("1.866025 mm")),
])
sketch9.setExpression("Constraints[18]", "Params.sketch9_width")
sketch9.setExpression("Constraints[19]", "Params.sketch9_width2")
sketch9.setExpression("Constraints[20]", "Params.sketch9_height")
sketch9.setExpression("Constraints[21]", "Params.sketch9_height2")
pad9 = doc.addObject("PartDesign::Pad", "Pad008")
body9.addObject(pad9)
pad9.Profile = sketch9
pad9.setExpression("Length", "Params.pad9_length")
pad9.Reversed = True
body10 = doc.addObject("PartDesign::Body", "Body009")

sketch10 = doc.addObject("Sketcher::SketchObject", "Sketch009")
body10.addObject(sketch10)
sketch10.AttachmentSupport = (doc.getObject("XY_Plane009"), [""])
sketch10.MapMode = "FlatFace"
sketch10.AttachmentOffset = App.Placement(Vector(0, 0, 0.08), App.Rotation())
add_polygon(sketch10, [(1.42, 1.28), (1.82, 0.59), (1.88, 0.62), (1.93, 0.54), (2.52, 0.88), (2.02, 1.74), (1.43, 1.4), (1.48, 1.31)])
sketch10.addConstraint([
    Sketcher.Constraint("Perpendicular", 0, 1),
    Sketcher.Constraint("Perpendicular", 1, 2),
    Sketcher.Constraint("Perpendicular", 2, 3),
    Sketcher.Constraint("Perpendicular", 3, 4),
    Sketcher.Constraint("Perpendicular", 4, 5),
    Sketcher.Constraint("Perpendicular", 5, 6),
    Sketcher.Constraint("Perpendicular", 6, 7),
    Sketcher.Constraint("Equal", 3, 5),
    Sketcher.Constraint("Equal", 2, 6),
    Sketcher.Constraint("Angle", 0, Q("-60 deg")),
    Sketcher.Constraint("Distance", 4, Q("1 mm")),
    Sketcher.Constraint("Distance", 0, Q("0.8 mm")),
    Sketcher.Constraint("Distance", 1, Q("0.07 mm")),
    Sketcher.Constraint("Distance", 3, Q("0.68 mm")),
    Sketcher.Constraint("DistanceY", -1, 1, 2, 2, Q("0.535 mm")),
    Sketcher.Constraint("DistanceX", -1, 1, 0, 2, Q("1.816025 mm")),
])
sketch10.setExpression("Constraints[18]", "Params.sketch10_length")
sketch10.setExpression("Constraints[19]", "Params.sketch10_length2")
sketch10.setExpression("Constraints[20]", "Params.sketch10_length3")
sketch10.setExpression("Constraints[21]", "Params.sketch10_length4")
pad10 = doc.addObject("PartDesign::Pad", "Pad009")
body10.addObject(pad10)
pad10.Profile = sketch10
pad10.setExpression("Length", "Params.pad10_length")
pad10.Reversed = True
body11 = doc.addObject("PartDesign::Body", "Body010")

sketch11 = doc.addObject("Sketcher::SketchObject", "Sketch010")
body11.addObject(sketch11)
sketch11.AttachmentSupport = (doc.getObject("XY_Plane010"), [""])
sketch11.MapMode = "FlatFace"
sketch11.AttachmentOffset = App.Placement(Vector(0, 0, 0.08), App.Rotation())
add_polygon(sketch11, [(1.82, -0.59), (1.42, -1.28), (1.48, -1.31), (1.43, -1.4), (2.02, -1.74), (2.52, -0.88), (1.93, -0.54), (1.88, -0.62)])
sketch11.addConstraint([
    Sketcher.Constraint("Perpendicular", 0, 1),
    Sketcher.Constraint("Perpendicular", 1, 2),
    Sketcher.Constraint("Perpendicular", 2, 3),
    Sketcher.Constraint("Perpendicular", 3, 4),
    Sketcher.Constraint("Perpendicular", 4, 5),
    Sketcher.Constraint("Perpendicular", 5, 6),
    Sketcher.Constraint("Perpendicular", 6, 7),
    Sketcher.Constraint("Equal", 3, 5),
    Sketcher.Constraint("Equal", 2, 6),
    Sketcher.Constraint("Angle", 0, Q("-120 deg")),
    Sketcher.Constraint("Distance", 4, Q("1 mm")),
    Sketcher.Constraint("Distance", 0, Q("0.8 mm")),
    Sketcher.Constraint("Distance", 1, Q("0.07 mm")),
    Sketcher.Constraint("Distance", 3, Q("0.68 mm")),
    Sketcher.Constraint("DistanceY", 4, 2, -1, 1, Q("0.875 mm")),
    Sketcher.Constraint("DistanceX", -1, 1, 0, 2, Q("1.416025 mm")),
])
sketch11.setExpression("Constraints[18]", "Params.sketch11_length")
sketch11.setExpression("Constraints[19]", "Params.sketch11_length2")
sketch11.setExpression("Constraints[20]", "Params.sketch11_length3")
sketch11.setExpression("Constraints[21]", "Params.sketch11_length4")
pad11 = doc.addObject("PartDesign::Pad", "Pad010")
body11.addObject(pad11)
pad11.Profile = sketch11
pad11.setExpression("Length", "Params.pad11_length")
pad11.Reversed = True
body12 = doc.addObject("PartDesign::Body", "Body011")

sketch12 = doc.addObject("Sketcher::SketchObject", "Sketch011")
body12.addObject(sketch12)
sketch12.AttachmentSupport = (doc.getObject("XY_Plane011"), [""])
sketch12.MapMode = "FlatFace"
sketch12.AttachmentOffset = App.Placement(Vector(0, 0, 0.08), App.Rotation())
add_polygon(sketch12, [(0.4, -1.87), (-0.4, -1.87), (-0.4, -1.94), (-0.5, -1.94), (-0.5, -2.62), (0.5, -2.62), (0.5, -1.94), (0.4, -1.94)])
sketch12.addConstraint([
    Sketcher.Constraint("Horizontal", 0),
    Sketcher.Constraint("Vertical", 1),
    Sketcher.Constraint("Horizontal", 2),
    Sketcher.Constraint("Vertical", 3),
    Sketcher.Constraint("Horizontal", 4),
    Sketcher.Constraint("Vertical", 5),
    Sketcher.Constraint("Horizontal", 6),
    Sketcher.Constraint("Vertical", 7),
    Sketcher.Constraint("Symmetric", 2, 2, 5, 2, -2),
    Sketcher.Constraint("Equal", 2, 6),
    Sketcher.Constraint("DistanceX", 4, 1, 4, 2, Q("1 mm")),
    Sketcher.Constraint("DistanceX", 0, 2, 0, 1, Q("0.8 mm")),
    Sketcher.Constraint("DistanceY", 1, 2, 1, 1, Q("0.07 mm")),
    Sketcher.Constraint("DistanceY", 3, 2, 3, 1, Q("0.68 mm")),
    Sketcher.Constraint("DistanceY", 0, 2, -1, 1, Q("1.866025 mm")),
])
sketch12.setExpression("Constraints[18]", "Params.sketch12_width")
sketch12.setExpression("Constraints[19]", "Params.sketch12_width2")
sketch12.setExpression("Constraints[20]", "Params.sketch12_height")
sketch12.setExpression("Constraints[21]", "Params.sketch12_height2")
pad12 = doc.addObject("PartDesign::Pad", "Pad011")
body12.addObject(pad12)
pad12.Profile = sketch12
pad12.setExpression("Length", "Params.pad12_length")
pad12.Reversed = True
body13 = doc.addObject("PartDesign::Body", "Body012")

sketch13 = doc.addObject("Sketcher::SketchObject", "Sketch012")
body13.addObject(sketch13)
sketch13.AttachmentSupport = (doc.getObject("XY_Plane012"), [""])
sketch13.MapMode = "FlatFace"
sketch13.AttachmentOffset = App.Placement(Vector(0, 0, 0.08), App.Rotation())
add_polygon(sketch13, [(-1.42, -1.28), (-1.82, -0.59), (-1.88, -0.62), (-1.93, -0.54), (-2.52, -0.88), (-2.02, -1.74), (-1.43, -1.4), (-1.48, -1.31)])
sketch13.addConstraint([
    Sketcher.Constraint("Perpendicular", 0, 1),
    Sketcher.Constraint("Perpendicular", 1, 2),
    Sketcher.Constraint("Perpendicular", 2, 3),
    Sketcher.Constraint("Perpendicular", 3, 4),
    Sketcher.Constraint("Perpendicular", 4, 5),
    Sketcher.Constraint("Perpendicular", 5, 6),
    Sketcher.Constraint("Perpendicular", 6, 7),
    Sketcher.Constraint("Equal", 3, 5),
    Sketcher.Constraint("Equal", 2, 6),
    Sketcher.Constraint("Angle", 0, Q("120 deg")),
    Sketcher.Constraint("Distance", 4, Q("1 mm")),
    Sketcher.Constraint("Distance", 0, Q("0.8 mm")),
    Sketcher.Constraint("Distance", 1, Q("0.07 mm")),
    Sketcher.Constraint("Distance", 3, Q("0.68 mm")),
    Sketcher.Constraint("DistanceY", 2, 2, -1, 1, Q("0.535 mm")),
    Sketcher.Constraint("DistanceX", 0, 2, -1, 1, Q("1.816025 mm")),
])
sketch13.setExpression("Constraints[18]", "Params.sketch13_length")
sketch13.setExpression("Constraints[19]", "Params.sketch13_length2")
sketch13.setExpression("Constraints[20]", "Params.sketch13_length3")
sketch13.setExpression("Constraints[21]", "Params.sketch13_length4")
pad13 = doc.addObject("PartDesign::Pad", "Pad012")
body13.addObject(pad13)
pad13.Profile = sketch13
pad13.setExpression("Length", "Params.pad13_length")
pad13.Reversed = True

doc.recompute()
